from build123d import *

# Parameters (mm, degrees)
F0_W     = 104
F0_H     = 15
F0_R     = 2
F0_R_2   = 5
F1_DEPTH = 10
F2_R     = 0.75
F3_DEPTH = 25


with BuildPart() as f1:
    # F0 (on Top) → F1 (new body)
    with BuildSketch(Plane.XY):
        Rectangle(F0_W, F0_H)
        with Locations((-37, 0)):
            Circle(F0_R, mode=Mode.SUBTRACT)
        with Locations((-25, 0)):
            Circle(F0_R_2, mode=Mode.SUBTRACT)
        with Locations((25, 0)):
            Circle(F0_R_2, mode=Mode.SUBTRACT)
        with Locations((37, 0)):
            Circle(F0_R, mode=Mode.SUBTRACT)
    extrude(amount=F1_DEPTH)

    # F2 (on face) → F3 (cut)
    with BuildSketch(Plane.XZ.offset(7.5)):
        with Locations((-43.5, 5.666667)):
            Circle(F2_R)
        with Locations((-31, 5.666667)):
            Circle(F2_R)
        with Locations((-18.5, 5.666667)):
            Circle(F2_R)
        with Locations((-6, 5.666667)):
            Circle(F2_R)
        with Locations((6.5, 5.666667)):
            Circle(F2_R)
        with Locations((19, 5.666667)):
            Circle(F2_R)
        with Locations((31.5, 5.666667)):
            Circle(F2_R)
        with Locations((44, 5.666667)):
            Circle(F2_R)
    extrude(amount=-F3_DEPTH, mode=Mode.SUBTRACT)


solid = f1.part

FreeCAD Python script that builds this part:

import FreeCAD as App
import Part
import Sketcher
Q = App.Units.Quantity


def add_polygon(sketch, points):
    """Adds a closed chain of lines whose ends are joined by coincident constraints."""
    first, n = sketch.GeometryCount, len(points)
    for a, b in zip(points, points[1:] + points[:1]):
        sketch.addGeometry(Part.LineSegment(App.Vector(*a, 0), App.Vector(*b, 0)), False)
    for i in range(n):
        sketch.addConstraint(Sketcher.Constraint("Coincident", first + i, 2, first + (i + 1) % n, 1))

doc = App.newDocument("Part")
body = doc.addObject("PartDesign::Body", "Body")

# Sketch on XY plane
sketch1 = body.newObject("Sketcher::SketchObject", "Sketch")
sketch1.AttachmentSupport = (doc.getObject("XY_Plane"), [""])
sketch1.MapMode = "FlatFace"
add_polygon(sketch1, [(-52, 7.5), (-52, -7.5), (52, -7.5), (52, 7.5)])  # lines 0-3
sketch1.addGeometry(Part.Circle(App.Vector(-37, 0, 0), App.Vector(0, 0, 1), 2), False)  # 4
sketch1.addGeometry(Part.Circle(App.Vector(-25, 0, 0), App.Vector(0, 0, 1), 5), False)  # 5
sketch1.addGeometry(Part.Circle(App.Vector(25, 0, 0), App.Vector(0, 0, 1), 5), False)  # 6
sketch1.addGeometry(Part.Circle(App.Vector(37, 0, 0), App.Vector(0, 0, 1), 2), False)  # 7
sketch1.addConstraint([
    Sketcher.Constraint("Vertical", 0),
    Sketcher.Constraint("Horizontal", 1),
    Sketcher.Constraint("Vertical", 2),
    Sketcher.Constraint("Horizontal", 3),
    Sketcher.Constraint("Equal", 5, 6),
    Sketcher.Constraint("Equal", 4, 7),
    Sketcher.Constraint("Symmetric", 5, 3, 6, 3, -1, 1),
    Sketcher.Constraint("Symmetric", 4, 3, 7, 3, -1, 1),
    Sketcher.Constraint("Symmetric", 0, 2, 2, 2, -1, 1),
    Sketcher.Constraint("PointOnObject", 4, 3, -1),
    Sketcher.Constraint("PointOnObject", 5, 3, -1),
    Sketcher.Constraint("Diameter", 4, Q("4 mm")),
    Sketcher.Constraint("Diameter", 5, Q("10 mm")),
    Sketcher.Constraint("DistanceX", 1, 1, 1, 2, Q("104 mm")),
    Sketcher.Constraint("DistanceY", 0, 2, 0, 1, Q("15 mm")),
    Sketcher.Constraint("DistanceX", 4, 3, -1, 1, Q("37 mm")),
    Sketcher.Constraint("DistanceX", 5, 3, -1, 1, Q("25 mm")),
])
pad1 = body.newObject("PartDesign::Pad", "Pad")
pad1.Profile = sketch1
pad1.Length = 10

# Sketch on XZ plane
sketch2 = body.newObject("Sketcher::SketchObject", "Sketch001")
sketch2.AttachmentSupport = (doc.getObject("XZ_Plane"), [""])
sketch2.MapMode = "FlatFace"
sketch2.AttachmentOffset = App.Placement(App.Vector(0, 0, 7.5), App.Rotation())
sketch2.addGeometry([
    Part.Circle(App.Vector(-43.5, 5.7, 0), App.Vector(0, 0, 1), 0.8),  # 0
    Part.Circle(App.Vector(-31, 5.7, 0), App.Vector(0, 0, 1), 0.8),  # 1
    Part.Circle(App.Vector(-18.5, 5.7, 0), App.Vector(0, 0, 1), 0.8),  # 2
    Part.Circle(App.Vector(-6, 5.7, 0), App.Vector(0, 0, 1), 0.8),  # 3
    Part.Circle(App.Vector(6.5, 5.7, 0), App.Vector(0, 0, 1), 0.8),  # 4
    Part.Circle(App.Vector(19, 5.7, 0), App.Vector(0, 0, 1), 0.8),  # 5
    Part.Circle(App.Vector(31.5, 5.7, 0), App.Vector(0, 0, 1), 0.8),  # 6
    Part.Circle(App.Vector(44, 5.7, 0), App.Vector(0, 0, 1), 0.8),  # 7
], False)
sketch2.addConstraint([
    Sketcher.Constraint("Equal", 0, 1),
    Sketcher.Constraint("Equal", 1, 2),
    Sketcher.Constraint("Equal", 2, 3),
    Sketcher.Constraint("Equal", 3, 4),
    Sketcher.Constraint("Equal", 4, 5),
    Sketcher.Constraint("Equal", 5, 6),
    Sketcher.Constraint("Equal", 6, 7),
    Sketcher.Constraint("Horizontal", 0, 3, 1, 3),
    Sketcher.Constraint("Horizontal", 1, 3, 2, 3),
    Sketcher.Constraint("Horizontal", 2, 3, 3, 3),
    Sketcher.Constraint("Horizontal", 3, 3, 4, 3),
    Sketcher.Constraint("Horizontal", 4, 3, 5, 3),
    Sketcher.Constraint("Horizontal", 5, 3, 6, 3),
    Sketcher.Constraint("Horizontal", 6, 3, 7, 3),
    Sketcher.Constraint("Diameter", 0, Q("1.5 mm")),
    Sketcher.Constraint("DistanceX", 1, 3, -1, 1, Q("31 mm")),
    Sketcher.Constraint("DistanceX", 3, 3, -1, 1, Q("6 mm")),
    Sketcher.Constraint("DistanceX", -1, 1, 5, 3, Q("19 mm")),
    Sketcher.Constraint("DistanceX", -1, 1, 7, 3, Q("44 mm")),
    Sketcher.Constraint("DistanceX", 0, 3, 2, 3, Q("25 mm")),
    Sketcher.Constraint("DistanceX", 2, 3, 4, 3, Q("25 mm")),
    Sketcher.Constraint("DistanceX", 4, 3, 6, 3, Q("25 mm")),
    Sketcher.Constraint("DistanceX", 0, 3, -1, 1, Q("43.5 mm")),
    Sketcher.Constraint("DistanceY", -1, 1, 0, 3, Q("5.666667 mm")),
])
pocket1 = body.newObject("PartDesign::Pocket", "Pocket")
pocket1.Profile = sketch2
pocket1.Length = 25

doc.recompute()
